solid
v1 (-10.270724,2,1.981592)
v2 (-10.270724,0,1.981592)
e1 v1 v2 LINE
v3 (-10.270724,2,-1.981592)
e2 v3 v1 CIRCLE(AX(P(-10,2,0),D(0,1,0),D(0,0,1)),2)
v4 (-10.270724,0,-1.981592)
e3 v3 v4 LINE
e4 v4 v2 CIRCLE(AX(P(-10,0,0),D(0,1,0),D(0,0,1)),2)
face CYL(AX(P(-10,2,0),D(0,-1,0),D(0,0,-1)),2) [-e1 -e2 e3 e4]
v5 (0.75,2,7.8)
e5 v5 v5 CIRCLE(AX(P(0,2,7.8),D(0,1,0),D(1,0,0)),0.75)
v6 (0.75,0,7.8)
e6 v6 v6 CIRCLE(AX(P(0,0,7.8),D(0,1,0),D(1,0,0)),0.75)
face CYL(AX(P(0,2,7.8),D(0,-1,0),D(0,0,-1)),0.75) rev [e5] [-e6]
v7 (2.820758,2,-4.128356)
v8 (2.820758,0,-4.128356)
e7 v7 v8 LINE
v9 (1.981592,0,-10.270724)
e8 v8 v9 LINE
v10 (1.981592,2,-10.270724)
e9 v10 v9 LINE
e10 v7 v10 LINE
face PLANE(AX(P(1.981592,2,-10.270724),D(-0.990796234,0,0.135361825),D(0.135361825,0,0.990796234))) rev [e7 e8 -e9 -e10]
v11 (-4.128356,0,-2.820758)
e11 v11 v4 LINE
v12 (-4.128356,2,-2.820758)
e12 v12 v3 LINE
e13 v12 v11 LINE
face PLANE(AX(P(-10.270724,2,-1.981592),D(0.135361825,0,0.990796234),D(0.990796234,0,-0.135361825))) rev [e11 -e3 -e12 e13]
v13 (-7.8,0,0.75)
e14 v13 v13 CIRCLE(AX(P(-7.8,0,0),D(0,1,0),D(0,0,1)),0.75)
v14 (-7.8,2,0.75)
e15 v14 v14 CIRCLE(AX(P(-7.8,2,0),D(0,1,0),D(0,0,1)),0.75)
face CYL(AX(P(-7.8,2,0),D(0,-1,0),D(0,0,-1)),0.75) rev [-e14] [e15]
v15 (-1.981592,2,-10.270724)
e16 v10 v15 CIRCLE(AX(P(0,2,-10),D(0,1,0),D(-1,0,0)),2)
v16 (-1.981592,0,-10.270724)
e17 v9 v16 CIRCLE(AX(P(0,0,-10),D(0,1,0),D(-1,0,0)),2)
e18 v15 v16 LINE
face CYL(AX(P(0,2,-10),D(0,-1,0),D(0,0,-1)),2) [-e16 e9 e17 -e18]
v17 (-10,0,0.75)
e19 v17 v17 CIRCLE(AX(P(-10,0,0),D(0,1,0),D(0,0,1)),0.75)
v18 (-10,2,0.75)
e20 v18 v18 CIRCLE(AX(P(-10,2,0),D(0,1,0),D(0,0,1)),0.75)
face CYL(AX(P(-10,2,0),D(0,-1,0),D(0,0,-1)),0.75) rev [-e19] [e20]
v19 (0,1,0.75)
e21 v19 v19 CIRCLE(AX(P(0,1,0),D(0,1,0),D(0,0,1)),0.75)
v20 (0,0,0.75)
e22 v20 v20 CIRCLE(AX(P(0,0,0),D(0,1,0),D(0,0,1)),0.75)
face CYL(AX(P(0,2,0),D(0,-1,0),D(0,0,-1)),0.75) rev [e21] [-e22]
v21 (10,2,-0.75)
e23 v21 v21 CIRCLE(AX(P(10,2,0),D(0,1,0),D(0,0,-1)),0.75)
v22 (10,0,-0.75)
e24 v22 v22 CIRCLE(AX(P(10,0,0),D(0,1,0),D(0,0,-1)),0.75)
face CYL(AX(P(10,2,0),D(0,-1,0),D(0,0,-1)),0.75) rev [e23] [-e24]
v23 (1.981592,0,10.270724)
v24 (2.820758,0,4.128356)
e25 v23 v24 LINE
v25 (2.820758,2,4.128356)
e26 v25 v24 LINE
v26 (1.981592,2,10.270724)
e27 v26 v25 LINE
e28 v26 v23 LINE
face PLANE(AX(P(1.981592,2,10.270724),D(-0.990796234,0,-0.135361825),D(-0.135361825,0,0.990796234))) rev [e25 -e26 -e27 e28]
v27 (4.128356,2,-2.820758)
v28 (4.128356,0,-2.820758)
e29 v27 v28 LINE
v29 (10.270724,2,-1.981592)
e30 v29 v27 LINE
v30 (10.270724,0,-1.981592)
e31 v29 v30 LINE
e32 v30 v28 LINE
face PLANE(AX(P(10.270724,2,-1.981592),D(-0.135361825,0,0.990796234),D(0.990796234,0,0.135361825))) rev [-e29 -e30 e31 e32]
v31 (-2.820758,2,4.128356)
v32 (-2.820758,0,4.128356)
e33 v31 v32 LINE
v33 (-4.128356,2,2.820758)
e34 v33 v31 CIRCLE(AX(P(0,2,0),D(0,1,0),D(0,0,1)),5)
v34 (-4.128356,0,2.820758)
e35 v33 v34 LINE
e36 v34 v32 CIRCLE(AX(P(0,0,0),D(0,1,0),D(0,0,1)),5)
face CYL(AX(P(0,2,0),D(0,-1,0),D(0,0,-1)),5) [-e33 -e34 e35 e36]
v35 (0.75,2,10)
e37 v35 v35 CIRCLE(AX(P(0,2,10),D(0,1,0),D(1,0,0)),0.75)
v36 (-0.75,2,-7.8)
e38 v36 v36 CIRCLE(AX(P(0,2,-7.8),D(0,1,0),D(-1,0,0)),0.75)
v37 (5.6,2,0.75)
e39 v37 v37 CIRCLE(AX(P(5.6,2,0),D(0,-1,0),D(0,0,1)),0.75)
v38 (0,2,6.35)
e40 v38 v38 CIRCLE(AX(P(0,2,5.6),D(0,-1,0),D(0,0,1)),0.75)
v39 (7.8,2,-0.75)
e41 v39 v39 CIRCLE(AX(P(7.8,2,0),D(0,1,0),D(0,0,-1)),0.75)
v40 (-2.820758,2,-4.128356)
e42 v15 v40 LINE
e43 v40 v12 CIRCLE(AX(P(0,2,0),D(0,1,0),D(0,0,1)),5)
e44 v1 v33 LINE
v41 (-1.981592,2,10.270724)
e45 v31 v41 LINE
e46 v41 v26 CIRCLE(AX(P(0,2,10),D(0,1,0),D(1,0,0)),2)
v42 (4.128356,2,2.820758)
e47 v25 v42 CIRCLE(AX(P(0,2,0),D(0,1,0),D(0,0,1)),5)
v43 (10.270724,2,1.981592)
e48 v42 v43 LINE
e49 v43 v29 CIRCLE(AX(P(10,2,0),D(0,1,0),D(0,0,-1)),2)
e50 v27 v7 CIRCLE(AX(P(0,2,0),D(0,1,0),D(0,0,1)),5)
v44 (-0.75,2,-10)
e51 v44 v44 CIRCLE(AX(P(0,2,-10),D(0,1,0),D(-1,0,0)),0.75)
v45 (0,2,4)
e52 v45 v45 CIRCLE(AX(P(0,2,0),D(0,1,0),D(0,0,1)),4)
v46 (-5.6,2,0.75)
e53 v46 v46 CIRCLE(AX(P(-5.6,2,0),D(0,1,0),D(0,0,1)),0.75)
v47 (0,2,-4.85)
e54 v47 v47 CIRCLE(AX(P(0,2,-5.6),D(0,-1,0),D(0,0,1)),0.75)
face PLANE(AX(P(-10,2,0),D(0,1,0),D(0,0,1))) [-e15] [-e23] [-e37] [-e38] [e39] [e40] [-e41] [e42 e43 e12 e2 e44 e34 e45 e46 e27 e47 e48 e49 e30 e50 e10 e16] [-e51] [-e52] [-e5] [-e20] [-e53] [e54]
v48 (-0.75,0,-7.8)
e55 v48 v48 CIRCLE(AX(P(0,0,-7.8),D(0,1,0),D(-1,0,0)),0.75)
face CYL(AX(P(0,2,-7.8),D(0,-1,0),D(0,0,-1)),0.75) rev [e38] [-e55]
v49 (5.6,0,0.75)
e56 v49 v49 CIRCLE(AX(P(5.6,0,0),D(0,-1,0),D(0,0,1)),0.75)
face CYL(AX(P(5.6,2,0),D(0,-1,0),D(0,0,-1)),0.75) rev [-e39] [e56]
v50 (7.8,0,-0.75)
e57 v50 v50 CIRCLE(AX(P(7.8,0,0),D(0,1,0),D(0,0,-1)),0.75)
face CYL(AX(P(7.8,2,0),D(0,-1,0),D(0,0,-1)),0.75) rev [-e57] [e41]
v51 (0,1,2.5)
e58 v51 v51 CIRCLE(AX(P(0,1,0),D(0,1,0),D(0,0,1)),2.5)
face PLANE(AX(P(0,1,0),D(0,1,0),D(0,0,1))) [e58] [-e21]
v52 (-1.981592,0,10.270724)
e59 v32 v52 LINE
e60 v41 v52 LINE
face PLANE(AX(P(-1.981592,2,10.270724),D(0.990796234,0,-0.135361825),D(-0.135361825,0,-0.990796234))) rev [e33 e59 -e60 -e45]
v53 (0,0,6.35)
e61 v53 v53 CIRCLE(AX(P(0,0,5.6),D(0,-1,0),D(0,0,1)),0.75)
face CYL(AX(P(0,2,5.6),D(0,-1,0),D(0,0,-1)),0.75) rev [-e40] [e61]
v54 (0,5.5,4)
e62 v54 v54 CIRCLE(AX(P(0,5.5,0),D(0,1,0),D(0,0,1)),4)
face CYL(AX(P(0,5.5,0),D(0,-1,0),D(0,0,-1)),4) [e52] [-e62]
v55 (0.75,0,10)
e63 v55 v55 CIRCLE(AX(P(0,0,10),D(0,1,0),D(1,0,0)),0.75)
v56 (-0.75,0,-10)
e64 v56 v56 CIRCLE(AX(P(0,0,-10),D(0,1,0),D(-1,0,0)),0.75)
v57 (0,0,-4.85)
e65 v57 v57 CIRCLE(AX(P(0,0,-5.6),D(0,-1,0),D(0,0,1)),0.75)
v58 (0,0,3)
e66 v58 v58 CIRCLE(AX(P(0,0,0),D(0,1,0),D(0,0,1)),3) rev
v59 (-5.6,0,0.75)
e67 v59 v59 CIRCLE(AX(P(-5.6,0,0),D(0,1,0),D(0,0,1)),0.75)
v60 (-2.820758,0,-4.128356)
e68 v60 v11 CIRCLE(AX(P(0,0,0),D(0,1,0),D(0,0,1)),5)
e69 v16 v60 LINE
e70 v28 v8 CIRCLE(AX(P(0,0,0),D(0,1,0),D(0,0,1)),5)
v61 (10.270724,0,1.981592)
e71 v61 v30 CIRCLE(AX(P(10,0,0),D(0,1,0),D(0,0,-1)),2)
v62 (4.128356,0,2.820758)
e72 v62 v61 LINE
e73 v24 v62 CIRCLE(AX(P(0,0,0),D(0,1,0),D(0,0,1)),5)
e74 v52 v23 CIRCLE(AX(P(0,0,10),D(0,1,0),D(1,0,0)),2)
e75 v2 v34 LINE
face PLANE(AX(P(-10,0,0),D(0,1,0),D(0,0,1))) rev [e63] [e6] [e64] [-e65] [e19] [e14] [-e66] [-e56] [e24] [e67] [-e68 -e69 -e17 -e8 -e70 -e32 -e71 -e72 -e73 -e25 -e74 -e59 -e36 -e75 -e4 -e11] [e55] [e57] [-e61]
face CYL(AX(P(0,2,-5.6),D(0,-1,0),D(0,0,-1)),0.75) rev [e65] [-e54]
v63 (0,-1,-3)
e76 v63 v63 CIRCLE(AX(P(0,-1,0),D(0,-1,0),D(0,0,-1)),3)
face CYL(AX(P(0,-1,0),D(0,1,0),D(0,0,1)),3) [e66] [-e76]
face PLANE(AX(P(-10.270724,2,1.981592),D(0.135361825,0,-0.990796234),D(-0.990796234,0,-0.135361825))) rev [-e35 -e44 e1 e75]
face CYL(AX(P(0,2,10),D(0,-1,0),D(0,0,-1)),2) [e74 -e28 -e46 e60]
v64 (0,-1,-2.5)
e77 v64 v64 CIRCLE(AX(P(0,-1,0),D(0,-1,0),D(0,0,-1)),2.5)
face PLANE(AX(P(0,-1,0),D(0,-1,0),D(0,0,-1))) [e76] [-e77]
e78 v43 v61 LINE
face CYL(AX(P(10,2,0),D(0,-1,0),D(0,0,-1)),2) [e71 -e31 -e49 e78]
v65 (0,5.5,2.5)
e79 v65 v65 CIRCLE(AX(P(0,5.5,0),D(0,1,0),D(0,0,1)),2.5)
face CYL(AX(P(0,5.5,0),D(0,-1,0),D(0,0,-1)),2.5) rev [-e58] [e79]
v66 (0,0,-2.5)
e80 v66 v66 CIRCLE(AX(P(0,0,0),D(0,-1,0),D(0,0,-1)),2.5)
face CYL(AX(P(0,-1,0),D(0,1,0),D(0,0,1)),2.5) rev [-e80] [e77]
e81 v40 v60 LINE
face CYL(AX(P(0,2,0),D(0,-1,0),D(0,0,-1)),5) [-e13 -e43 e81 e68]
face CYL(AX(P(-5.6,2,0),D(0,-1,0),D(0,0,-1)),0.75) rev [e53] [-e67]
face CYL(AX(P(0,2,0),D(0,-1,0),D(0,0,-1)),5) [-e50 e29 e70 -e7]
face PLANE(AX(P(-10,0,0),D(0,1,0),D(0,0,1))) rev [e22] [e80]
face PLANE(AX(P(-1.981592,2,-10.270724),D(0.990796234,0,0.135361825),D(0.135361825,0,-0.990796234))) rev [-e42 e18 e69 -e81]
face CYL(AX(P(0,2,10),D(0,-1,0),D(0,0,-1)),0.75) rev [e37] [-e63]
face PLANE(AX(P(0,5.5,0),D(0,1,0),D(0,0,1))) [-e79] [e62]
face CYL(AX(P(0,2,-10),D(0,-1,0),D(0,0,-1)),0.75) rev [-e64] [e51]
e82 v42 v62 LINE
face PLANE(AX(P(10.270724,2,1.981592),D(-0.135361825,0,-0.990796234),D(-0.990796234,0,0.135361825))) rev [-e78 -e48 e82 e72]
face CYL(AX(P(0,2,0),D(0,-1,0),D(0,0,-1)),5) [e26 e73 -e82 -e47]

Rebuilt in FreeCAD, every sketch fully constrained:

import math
import FreeCAD as App
import Part
import Sketcher
from FreeCAD import Vector

doc = App.newDocument("Part")
params = doc.addObject("Spreadsheet::Sheet", "Params")
for row, (alias, value) in enumerate([
    ("sketch1_radius", "2 mm"),
    ("sketch1_radius2", "5 mm"),
    ("sketch1_diameter", "1.5 mm"),
    ("pad1_length", "2 mm"),
    ("sketch2_diameter", "8 mm"),
    ("sketch2_diameter2", "5 mm"),
    ("pad2_length", "3.5 mm"),
    ("sketch3_diameter", "5 mm"),
    ("sketch3_diameter2", "1.5 mm"),
    ("pocket1_length", "1 mm"),
    ("sketch4_diameter", "6 mm"),
    ("sketch4_diameter2", "5 mm"),
    ("pad3_length", "1 mm"),
], start=1):
    params.set(f"A{row}", alias)
    params.set(f"B{row}", "=" + value)
    params.setAlias(f"B{row}", alias)

body = doc.addObject("PartDesign::Body", "Body")

sketch1 = body.newObject("Sketcher::SketchObject", "Sketch")
sketch1.AttachmentSupport = (doc.getObject("XZ_Plane"), [""])
sketch1.MapMode = "FlatFace"
sketch1.addGeometry(Part.LineSegment(Vector(-4.1, -2.8, 0), Vector(-10.3, -2, 0)), False)
sketch1.addGeometry(Part.ArcOfCircle(Part.Circle(Vector(-10, 0, 0), Vector(0, 0, 1), 2), math.radians(98), math.radians(262)), False)
sketch1.addGeometry(Part.LineSegment(Vector(-10.3, 2, 0), Vector(-4.1, 2.8, 0)), False)
sketch1.addGeometry(Part.ArcOfCircle(Part.Circle(Vector(0, 0, 0), Vector(0, 0, 1), 5), math.radians(95), math.radians(146)), False)
sketch1.addGeometry(Part.ArcOfCircle(Part.Circle(Vector(0, 5.6, 0), Vector(0, 0, 1), 0.8), math.radians(-125), math.radians(-55)), False)
sketch1.addGeometry(Part.ArcOfCircle(Part.Circle(Vector(0, 0, 0), Vector(0, 0, 1), 5), math.radians(5), math.radians(85)), False)
sketch1.addGeometry(Part.ArcOfCircle(Part.Circle(Vector(5.6, 0, 0), Vector(0, 0, 1), 0.8), math.radians(145), math.radians(215)), False)
sketch1.addGeometry(Part.ArcOfCircle(Part.Circle(Vector(0, 0, 0), Vector(0, 0, 1), 5), math.radians(-85), math.radians(-5)), False)
sketch1.addGeometry(Part.ArcOfCircle(Part.Circle(Vector(0, -5.6, 0), Vector(0, 0, 1), 0.8), math.radians(55), math.radians(125)), False)
sketch1.addGeometry(Part.ArcOfCircle(Part.Circle(Vector(0, 0, 0), Vector(0, 0, 1), 5), math.radians(-146), math.radians(-95)), False)
sketch1.addGeometry(Part.Circle(Vector(0, 0, 0), Vector(0, 0, 1), 0.8), False)
sketch1.addGeometry(Part.Circle(Vector(-5.6, 0, 0), Vector(0, 0, 1), 0.8), False)
sketch1.addGeometry(Part.Circle(Vector(-7.8, 0, 0), Vector(0, 0, 1), 0.8), False)
sketch1.addGeometry(Part.Circle(Vector(-10, 0, 0), Vector(0, 0, 1), 0.8), False)
sketch1.addConstraint(Sketcher.Constraint("Tangent", 0, 2, 1, 2))
sketch1.addConstraint(Sketcher.Constraint("Tangent", 1, 1, 2, 1))
sketch1.addConstraint(Sketcher.Constraint("Coincident", 2, 2, 3, 2))
sketch1.addConstraint(Sketcher.Constraint("Coincident", 3, 1, 4, 1))
sketch1.addConstraint(Sketcher.Constraint("Coincident", 4, 2, 5, 2))
sketch1.addConstraint(Sketcher.Constraint("Coincident", 5, 1, 6, 1))
sketch1.addConstraint(Sketcher.Constraint("Coincident", 6, 2, 7, 2))
sketch1.addConstraint(Sketcher.Constraint("Coincident", 7, 1, 8, 1))
sketch1.addConstraint(Sketcher.Constraint("Coincident", 8, 2, 9, 2))
sketch1.addConstraint(Sketcher.Constraint("Coincident", 9, 1, 0, 1))
sketch1.addConstraint(Sketcher.Constraint("Coincident", 3, 3, -1, 1))
sketch1.addConstraint(Sketcher.Constraint("Coincident", 5, 3, -1, 1))
sketch1.addConstraint(Sketcher.Constraint("Coincident", 7, 3, -1, 1))
sketch1.addConstraint(Sketcher.Constraint("Coincident", 9, 3, -1, 1))
sketch1.addConstraint(Sketcher.Constraint("Coincident", 10, 3, -1, 1))
sketch1.addConstraint(Sketcher.Constraint("Coincident", 13, 3, 1, 3))
sketch1.addConstraint(Sketcher.Constraint("Equal", 3, 5))
sketch1.addConstraint(Sketcher.Constraint("Equal", 4, 6))
sketch1.addConstraint(Sketcher.Constraint("Equal", 5, 7))
sketch1.addConstraint(Sketcher.Constraint("Equal", 6, 8))
sketch1.addConstraint(Sketcher.Constraint("Equal", 7, 9))
sketch1.addConstraint(Sketcher.Constraint("Equal", 8, 10))
sketch1.addConstraint(Sketcher.Constraint("Equal", 10, 11))
sketch1.addConstraint(Sketcher.Constraint("Equal", 11, 12))
sketch1.addConstraint(Sketcher.Constraint("Equal", 12, 13))
sketch1.addConstraint(Sketcher.Constraint("Symmetric", 4, 3, 8, 3, -1, 1))
sketch1.addConstraint(Sketcher.Constraint("Symmetric", 6, 3, 11, 3, -1, 1))
sketch1.addConstraint(Sketcher.Constraint("Symmetric", 0, 2, 1, 1, -1))
sketch1.addConstraint(Sketcher.Constraint("PointOnObject", 4, 3, -2))
sketch1.addConstraint(Sketcher.Constraint("PointOnObject", 6, 3, -1))
sketch1.addConstraint(Sketcher.Constraint("PointOnObject", 12, 3, -1))
sketch1.addConstraint(Sketcher.Constraint("Radius", 1, 2.0))
sketch1.addConstraint(Sketcher.Constraint("Radius", 3, 5.0))
sketch1.addConstraint(Sketcher.Constraint("Diameter", 10, 1.5))
sketch1.addConstraint(Sketcher.Constraint("DistanceX", 1, 3, -1, 1, 10.0))
sketch1.addConstraint(Sketcher.Constraint("DistanceY", -1, 1, 4, 3, 5.6))
sketch1.addConstraint(Sketcher.Constraint("DistanceX", -1, 1, 6, 3, 5.6))
sketch1.addConstraint(Sketcher.Constraint("DistanceX", 12, 3, -1, 1, 7.8))
sketch1.addConstraint(Sketcher.Constraint("DistanceY", -1, 1, 2, 2, 2.820758))
sketch1.setExpression("Constraints[31]", "Params.sketch1_radius")
sketch1.setExpression("Constraints[32]", "Params.sketch1_radius2")
sketch1.setExpression("Constraints[33]", "Params.sketch1_diameter")
pad1 = body.newObject("PartDesign::Pad", "Pad")
pad1.Profile = sketch1
pad1.setExpression("Length", "Params.pad1_length")
pad1.Reversed = True
doc.recompute()

polarpattern = body.newObject("PartDesign::PolarPattern", "PolarPattern")
polarpattern.Originals = [pad1]
polarpattern.Axis = (doc.getObject("Y_Axis"), [""])
polarpattern.Angle = 360
polarpattern.Occurrences = 4
body.Tip = polarpattern

sketch2 = body.newObject("Sketcher::SketchObject", "Sketch001")
sketch2.AttachmentSupport = (doc.getObject("XZ_Plane"), [""])
sketch2.MapMode = "FlatFace"
sketch2.AttachmentOffset = App.Placement(Vector(0, 0, -2), App.Rotation())
sketch2.addGeometry(Part.Circle(Vector(0, 0, 0), Vector(0, 0, 1), 4), False)
sketch2.addGeometry(Part.Circle(Vector(0, 0, 0), Vector(0, 0, 1), 2.5), False)
sketch2.addConstraint(Sketcher.Constraint("Coincident", 0, 3, -1, 1))
sketch2.addConstraint(Sketcher.Constraint("Coincident", 1, 3, -1, 1))
sketch2.addConstraint(Sketcher.Constraint("Diameter", 0, 8.0))
sketch2.addConstraint(Sketcher.Constraint("Diameter", 1, 5.0))
sketch2.setExpression("Constraints[2]", "Params.sketch2_diameter")
sketch2.setExpression("Constraints[3]", "Params.sketch2_diameter2")
pad2 = body.newObject("PartDesign::Pad", "Pad001")
pad2.Profile = sketch2
pad2.setExpression("Length", "Params.pad2_length")
pad2.Reversed = True

sketch3 = body.newObject("Sketcher::SketchObject", "Sketch002")
sketch3.AttachmentSupport = (doc.getObject("XZ_Plane"), [""])
sketch3.MapMode = "FlatFace"
sketch3.AttachmentOffset = App.Placement(Vector(0, 0, -1), App.Rotation())
sketch3.addGeometry(Part.Circle(Vector(0, 0, 0), Vector(0, 0, 1), 2.5), False)
sketch3.addGeometry(Part.Circle(Vector(0, 0, 0), Vector(0, 0, 1), 0.8), False)
sketch3.addConstraint(Sketcher.Constraint("Coincident", 0, 3, -1, 1))
sketch3.addConstraint(Sketcher.Constraint("Coincident", 1, 3, -1, 1))
sketch3.addConstraint(Sketcher.Constraint("Diameter", 0, 5.0))
sketch3.addConstraint(Sketcher.Constraint("Diameter", 1, 1.5))
sketch3.setExpression("Constraints[2]", "Params.sketch3_diameter")
sketch3.setExpression("Constraints[3]", "Params.sketch3_diameter2")
pocket1 = body.newObject("PartDesign::Pocket", "Pocket")
pocket1.Profile = sketch3
pocket1.setExpression("Length", "Params.pocket1_length")

sketch4 = body.newObject("Sketcher::SketchObject", "Sketch003")
sketch4.AttachmentSupport = (doc.getObject("XZ_Plane"), [""])
sketch4.MapMode = "FlatFace"
sketch4.AttachmentOffset = App.Placement(Vector(0, 0, 1), App.Rotation())
sketch4.addGeometry(Part.Circle(Vector(0, 0, 0), Vector(0, 0, 1), 3), False)
sketch4.addGeometry(Part.Circle(Vector(0, 0, 0), Vector(0, 0, 1), 2.5), False)
sketch4.addConstraint(Sketcher.Constraint("Coincident", 0, 3, -1, 1))
sketch4.addConstraint(Sketcher.Constraint("Coincident", 1, 3, -1, 1))
sketch4.addConstraint(Sketcher.Constraint("Diameter", 0, 6.0))
sketch4.addConstraint(Sketcher.Constraint("Diameter", 1, 5.0))
sketch4.setExpression("Constraints[2]", "Params.sketch4_diameter")
sketch4.setExpression("Constraints[3]", "Params.sketch4_diameter2")
pad3 = body.newObject("PartDesign::Pad", "Pad002")
pad3.Profile = sketch4
pad3.setExpression("Length", "Params.pad3_length")
pad3.Reversed = True

doc.recompute()
